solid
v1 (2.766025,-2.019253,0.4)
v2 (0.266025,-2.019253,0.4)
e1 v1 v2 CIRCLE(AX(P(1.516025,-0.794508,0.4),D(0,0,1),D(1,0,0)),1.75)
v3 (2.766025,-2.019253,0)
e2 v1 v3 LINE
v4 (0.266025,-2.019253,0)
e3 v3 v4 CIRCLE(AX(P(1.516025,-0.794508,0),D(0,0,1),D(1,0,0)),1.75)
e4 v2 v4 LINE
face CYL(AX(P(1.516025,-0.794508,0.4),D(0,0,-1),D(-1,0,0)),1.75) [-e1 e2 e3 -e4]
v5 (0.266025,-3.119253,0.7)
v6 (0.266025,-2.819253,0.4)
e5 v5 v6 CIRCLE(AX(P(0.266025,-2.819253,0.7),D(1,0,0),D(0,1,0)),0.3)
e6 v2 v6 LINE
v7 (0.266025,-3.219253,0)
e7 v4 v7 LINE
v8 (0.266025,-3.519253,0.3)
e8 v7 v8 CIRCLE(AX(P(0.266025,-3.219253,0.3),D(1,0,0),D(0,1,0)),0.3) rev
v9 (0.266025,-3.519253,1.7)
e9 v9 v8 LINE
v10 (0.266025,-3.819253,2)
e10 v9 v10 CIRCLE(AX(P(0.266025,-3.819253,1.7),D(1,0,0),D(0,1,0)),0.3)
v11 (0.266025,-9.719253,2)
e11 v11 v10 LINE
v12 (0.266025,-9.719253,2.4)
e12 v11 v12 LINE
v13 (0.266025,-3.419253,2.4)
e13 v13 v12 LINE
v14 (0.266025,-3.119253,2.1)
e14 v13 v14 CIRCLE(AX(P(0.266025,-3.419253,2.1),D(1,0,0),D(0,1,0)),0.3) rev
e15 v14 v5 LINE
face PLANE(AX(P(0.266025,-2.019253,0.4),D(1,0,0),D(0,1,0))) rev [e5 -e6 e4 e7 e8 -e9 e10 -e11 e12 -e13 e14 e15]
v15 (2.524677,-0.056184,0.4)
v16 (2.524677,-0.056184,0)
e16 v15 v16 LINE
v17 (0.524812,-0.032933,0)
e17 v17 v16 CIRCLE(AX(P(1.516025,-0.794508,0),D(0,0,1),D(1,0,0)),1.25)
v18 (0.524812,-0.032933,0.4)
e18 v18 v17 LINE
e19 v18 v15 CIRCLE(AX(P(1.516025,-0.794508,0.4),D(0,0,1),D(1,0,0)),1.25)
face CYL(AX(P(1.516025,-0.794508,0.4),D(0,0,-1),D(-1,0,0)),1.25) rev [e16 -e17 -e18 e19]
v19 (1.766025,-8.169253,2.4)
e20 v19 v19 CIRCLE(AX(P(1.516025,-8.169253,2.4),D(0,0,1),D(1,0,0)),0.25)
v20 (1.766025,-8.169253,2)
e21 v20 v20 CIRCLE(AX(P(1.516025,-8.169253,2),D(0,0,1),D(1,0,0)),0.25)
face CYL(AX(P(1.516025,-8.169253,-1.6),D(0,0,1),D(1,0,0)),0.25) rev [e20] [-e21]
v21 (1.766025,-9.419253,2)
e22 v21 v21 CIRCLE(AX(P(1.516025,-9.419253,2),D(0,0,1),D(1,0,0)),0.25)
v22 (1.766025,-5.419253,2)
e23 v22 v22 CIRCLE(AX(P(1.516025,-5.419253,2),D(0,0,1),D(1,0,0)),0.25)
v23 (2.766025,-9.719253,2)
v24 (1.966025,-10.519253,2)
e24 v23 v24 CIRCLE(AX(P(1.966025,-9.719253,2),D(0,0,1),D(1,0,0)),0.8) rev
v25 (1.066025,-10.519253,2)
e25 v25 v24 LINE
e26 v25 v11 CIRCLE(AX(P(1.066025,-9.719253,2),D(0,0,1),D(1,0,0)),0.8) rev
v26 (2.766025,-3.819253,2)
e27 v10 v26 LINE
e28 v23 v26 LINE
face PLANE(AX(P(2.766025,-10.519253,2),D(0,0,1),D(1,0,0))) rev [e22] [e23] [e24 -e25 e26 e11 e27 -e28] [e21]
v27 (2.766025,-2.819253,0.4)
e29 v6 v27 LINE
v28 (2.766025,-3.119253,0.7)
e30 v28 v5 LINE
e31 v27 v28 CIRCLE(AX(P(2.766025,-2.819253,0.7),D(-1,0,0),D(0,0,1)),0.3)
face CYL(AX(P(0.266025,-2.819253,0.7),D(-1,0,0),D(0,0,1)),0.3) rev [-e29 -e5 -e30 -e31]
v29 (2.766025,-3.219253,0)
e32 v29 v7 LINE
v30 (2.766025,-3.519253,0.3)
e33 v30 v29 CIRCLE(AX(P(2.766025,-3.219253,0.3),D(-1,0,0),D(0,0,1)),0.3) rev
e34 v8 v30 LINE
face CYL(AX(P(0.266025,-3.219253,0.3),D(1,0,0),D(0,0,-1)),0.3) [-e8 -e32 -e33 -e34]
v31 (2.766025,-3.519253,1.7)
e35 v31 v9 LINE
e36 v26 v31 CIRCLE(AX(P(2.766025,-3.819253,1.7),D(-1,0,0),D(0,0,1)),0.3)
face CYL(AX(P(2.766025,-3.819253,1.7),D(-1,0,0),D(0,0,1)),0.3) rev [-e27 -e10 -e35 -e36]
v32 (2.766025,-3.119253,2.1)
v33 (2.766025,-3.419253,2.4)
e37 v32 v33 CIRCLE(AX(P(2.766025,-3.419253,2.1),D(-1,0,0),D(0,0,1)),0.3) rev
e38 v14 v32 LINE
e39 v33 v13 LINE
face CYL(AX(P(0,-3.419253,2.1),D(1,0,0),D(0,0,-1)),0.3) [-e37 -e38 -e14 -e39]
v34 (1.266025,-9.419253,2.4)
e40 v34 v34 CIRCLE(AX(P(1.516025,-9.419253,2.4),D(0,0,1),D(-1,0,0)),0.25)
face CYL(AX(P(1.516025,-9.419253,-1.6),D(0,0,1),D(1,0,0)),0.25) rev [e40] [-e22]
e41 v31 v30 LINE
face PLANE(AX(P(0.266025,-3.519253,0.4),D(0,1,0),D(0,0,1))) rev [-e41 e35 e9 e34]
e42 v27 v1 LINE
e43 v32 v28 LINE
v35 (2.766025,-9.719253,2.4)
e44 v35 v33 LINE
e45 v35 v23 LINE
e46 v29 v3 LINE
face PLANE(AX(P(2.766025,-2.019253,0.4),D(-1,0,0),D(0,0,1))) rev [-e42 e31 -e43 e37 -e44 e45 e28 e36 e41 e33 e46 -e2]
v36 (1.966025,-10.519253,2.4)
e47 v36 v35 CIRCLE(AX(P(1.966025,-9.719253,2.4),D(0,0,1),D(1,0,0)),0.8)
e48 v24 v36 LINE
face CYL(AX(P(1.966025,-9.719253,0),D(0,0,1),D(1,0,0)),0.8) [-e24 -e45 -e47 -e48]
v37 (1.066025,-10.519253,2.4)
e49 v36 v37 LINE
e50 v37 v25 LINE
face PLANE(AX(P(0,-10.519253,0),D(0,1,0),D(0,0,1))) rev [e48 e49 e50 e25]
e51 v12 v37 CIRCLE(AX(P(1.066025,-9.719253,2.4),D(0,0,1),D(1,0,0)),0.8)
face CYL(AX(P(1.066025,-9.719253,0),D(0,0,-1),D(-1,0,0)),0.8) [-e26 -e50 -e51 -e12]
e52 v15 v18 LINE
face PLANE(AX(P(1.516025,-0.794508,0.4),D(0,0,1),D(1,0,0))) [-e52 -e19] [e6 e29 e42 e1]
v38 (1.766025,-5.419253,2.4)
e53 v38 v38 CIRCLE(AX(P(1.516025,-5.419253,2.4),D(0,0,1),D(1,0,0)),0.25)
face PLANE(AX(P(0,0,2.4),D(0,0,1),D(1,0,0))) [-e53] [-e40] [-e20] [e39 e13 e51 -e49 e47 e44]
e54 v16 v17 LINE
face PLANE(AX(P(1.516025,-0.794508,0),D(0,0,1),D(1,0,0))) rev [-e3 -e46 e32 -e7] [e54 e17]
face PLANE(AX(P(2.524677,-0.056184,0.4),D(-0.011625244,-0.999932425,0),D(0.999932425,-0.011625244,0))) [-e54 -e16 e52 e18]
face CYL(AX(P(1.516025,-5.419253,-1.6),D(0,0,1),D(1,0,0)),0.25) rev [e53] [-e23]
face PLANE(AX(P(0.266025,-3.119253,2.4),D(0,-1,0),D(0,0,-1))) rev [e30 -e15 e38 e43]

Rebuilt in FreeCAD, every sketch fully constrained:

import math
import FreeCAD as App
import Part
import Sketcher
from FreeCAD import Vector
Q = App.Units.Quantity


def edges_at(feature, points):
    """Names of the edges that pass closest to the given points."""
    edges = feature.Shape.Edges
    near = lambda p: min(range(len(edges)), key=lambda i: edges[i].distToShape(Part.Vertex(*p))[0])
    return sorted({f"Edge{near(p) + 1}" for p in points})

doc = App.newDocument("Part")
body = doc.addObject("PartDesign::Body", "Body")

sketch1 = body.newObject("Sketcher::SketchObject", "Sketch")
sketch1.AttachmentSupport = (doc.getObject("XY_Plane"), [""])
sketch1.MapMode = "FlatFace"
sketch1.addGeometry([
    Part.LineSegment(Vector(0.3, -2, 0), Vector(0.3, -3.5, 0)),
    Part.LineSegment(Vector(0.3, -3.5, 0), Vector(2.8, -3.5, 0)),
    Part.LineSegment(Vector(2.8, -3.5, 0), Vector(2.8, -2, 0)),
    Part.ArcOfCircle(Part.Circle(Vector(1.5, -0.8, 0), Vector(0, 0, 1), 1.8), math.radians(-44), math.radians(224)),
    Part.LineSegment(Vector(0.5, 0, 0), Vector(2.5, -0.1, 0)),
    Part.ArcOfCircle(Part.Circle(Vector(1.5, -0.8, 0), Vector(0, 0, 1), 1.2), math.radians(142), math.radians(396)),
], False)
sketch1.addConstraint([
    Sketcher.Constraint("Coincident", 0, 2, 1, 1),
    Sketcher.Constraint("Coincident", 1, 2, 2, 1),
    Sketcher.Constraint("Coincident", 2, 2, 3, 1),
    Sketcher.Constraint("Coincident", 3, 2, 0, 1),
    Sketcher.Constraint("Coincident", 4, 1, 5, 1),
    Sketcher.Constraint("Coincident", 5, 2, 4, 2),
    Sketcher.Constraint("Vertical", 0),
    Sketcher.Constraint("Horizontal", 1),
    Sketcher.Constraint("Vertical", 2),
    Sketcher.Constraint("Coincident", 5, 3, 3, 3),
    Sketcher.Constraint("Horizontal", 2, 2, 3, 2),
    Sketcher.Constraint("Radius", 3, Q("1.75 mm")),
    Sketcher.Constraint("Radius", 5, Q("1.25 mm")),
    Sketcher.Constraint("Distance", 4, Q("2 mm")),
    Sketcher.Constraint("DistanceX", 1, 1, 1, 2, Q("2.5 mm")),
    Sketcher.Constraint("DistanceY", 0, 2, 0, 1, Q("1.5 mm")),
    Sketcher.Constraint("DistanceX", -1, 1, 4, 1, Q("0.524812 mm")),
    Sketcher.Constraint("DistanceY", 3, 2, 4, 1, Q("1.986319 mm")),
    Sketcher.Constraint("DistanceY", 3, 3, -1, 1, Q("0.794508 mm")),
])
pad1 = body.newObject("PartDesign::Pad", "Pad")
pad1.Profile = sketch1
pad1.Length = 0.4

sketch2 = body.newObject("Sketcher::SketchObject", "Sketch001")
sketch2.AttachmentSupport = (doc.getObject("XY_Plane"), [""])
sketch2.MapMode = "FlatFace"
sketch2.AttachmentOffset = App.Placement(Vector(0, 0, 0.4), App.Rotation())
sketch2.addGeometry([
    Part.LineSegment(Vector(0.27, -3.12, 0), Vector(0.27, -3.52, 0)),
    Part.LineSegment(Vector(0.27, -3.52, 0), Vector(2.77, -3.52, 0)),
    Part.LineSegment(Vector(2.77, -3.52, 0), Vector(2.77, -3.12, 0)),
    Part.LineSegment(Vector(2.77, -3.12, 0), Vector(0.27, -3.12, 0)),
], False)
sketch2.addConstraint([
    Sketcher.Constraint("Coincident", 0, 2, 1, 1),
    Sketcher.Constraint("Coincident", 1, 2, 2, 1),
    Sketcher.Constraint("Coincident", 2, 2, 3, 1),
    Sketcher.Constraint("Coincident", 3, 2, 0, 1),
    Sketcher.Constraint("Vertical", 0),
    Sketcher.Constraint("Horizontal", 1),
    Sketcher.Constraint("Vertical", 2),
    Sketcher.Constraint("Horizontal", 3),
    Sketcher.Constraint("DistanceX", 1, 1, 1, 2, Q("2.5 mm")),
    Sketcher.Constraint("DistanceY", 0, 2, 0, 1, Q("0.4 mm")),
    Sketcher.Constraint("DistanceX", -1, 1, 0, 2, Q("0.266025 mm")),
    Sketcher.Constraint("DistanceY", 0, 2, -1, 1, Q("3.519253 mm")),
])
pad2 = body.newObject("PartDesign::Pad", "Pad001")
pad2.Profile = sketch2
pad2.Length = 2

sketch3 = body.newObject("Sketcher::SketchObject", "Sketch002")
sketch3.AttachmentSupport = (doc.getObject("XZ_Plane"), [""])
sketch3.MapMode = "FlatFace"
sketch3.AttachmentOffset = App.Placement(Vector(0, 0, 3.519253), App.Rotation())
sketch3.addGeometry([
    Part.LineSegment(Vector(0.27, 2.4, 0), Vector(0.27, 2, 0)),
    Part.LineSegment(Vector(0.27, 2, 0), Vector(2.77, 2, 0)),
    Part.LineSegment(Vector(2.77, 2, 0), Vector(2.77, 2.4, 0)),
    Part.LineSegment(Vector(2.77, 2.4, 0), Vector(0.27, 2.4, 0)),
], False)
sketch3.addConstraint([
    Sketcher.Constraint("Coincident", 0, 2, 1, 1),
    Sketcher.Constraint("Coincident", 1, 2, 2, 1),
    Sketcher.Constraint("Coincident", 2, 2, 3, 1),
    Sketcher.Constraint("Coincident", 3, 2, 0, 1),
    Sketcher.Constraint("Vertical", 0),
    Sketcher.Constraint("Horizontal", 1),
    Sketcher.Constraint("Vertical", 2),
    Sketcher.Constraint("Horizontal", 3),
    Sketcher.Constraint("DistanceX", 1, 1, 1, 2, Q("2.5 mm")),
    Sketcher.Constraint("DistanceY", 0, 2, 0, 1, Q("0.4 mm")),
    Sketcher.Constraint("DistanceY", -1, 1, 0, 2, Q("2 mm")),
    Sketcher.Constraint("DistanceX", -1, 1, 0, 2, Q("0.266025 mm")),
])
pad3 = body.newObject("PartDesign::Pad", "Pad002")
pad3.Profile = sketch3
pad3.Length = 7
doc.recompute()

fillet = body.newObject("PartDesign::Fillet", "Fillet")
fillet.Base = (pad3, edges_at(pad3, [
    (1.516, -3.119, 0.4),
    (1.516, -3.119, 2.4),
    (1.516, -3.519, 2),
    (1.516, -3.519, 0),
]))
fillet.Radius = 0.3
doc.recompute()

fillet2 = body.newObject("PartDesign::Fillet", "Fillet001")
fillet2.Base = (fillet, edges_at(fillet, [(0.266, -10.519, 2.2), (2.766, -10.519, 2.2)]))
fillet2.Radius = 0.8

sketch4 = body.newObject("Sketcher::SketchObject", "Sketch003")
sketch4.AttachmentSupport = (doc.getObject("XY_Plane"), [""])
sketch4.MapMode = "FlatFace"
sketch4.AttachmentOffset = App.Placement(Vector(0, 0, 2.4), App.Rotation())
sketch4.addGeometry([
    Part.Circle(Vector(1.52, -5.42, 0), Vector(0, 0, 1), 0.25),
    Part.Circle(Vector(1.52, -9.42, 0), Vector(0, 0, 1), 0.25),
    Part.Circle(Vector(1.52, -8.17, 0), Vector(0, 0, 1), 0.25),
], False)
sketch4.addConstraint([
    Sketcher.Constraint("Equal", 0, 1),
    Sketcher.Constraint("Equal", 1, 2),
    Sketcher.Constraint("Vertical", 0, 3, 1, 3),
    Sketcher.Constraint("Vertical", 1, 3, 2, 3),
    Sketcher.Constraint("Diameter", 0, Q("0.5 mm")),
    Sketcher.Constraint("DistanceY", 1, 3, 0, 3, Q("4 mm")),
    Sketcher.Constraint("DistanceY", 1, 3, 2, 3, Q("1.25 mm")),
    Sketcher.Constraint("DistanceX", -1, 1, 0, 3, Q("1.516025 mm")),
    Sketcher.Constraint("DistanceY", 0, 3, -1, 1, Q("5.419253 mm")),
])
pocket1 = body.newObject("PartDesign::Pocket", "Pocket")
pocket1.Profile = sketch4
pocket1.Length = 4

doc.recompute()
